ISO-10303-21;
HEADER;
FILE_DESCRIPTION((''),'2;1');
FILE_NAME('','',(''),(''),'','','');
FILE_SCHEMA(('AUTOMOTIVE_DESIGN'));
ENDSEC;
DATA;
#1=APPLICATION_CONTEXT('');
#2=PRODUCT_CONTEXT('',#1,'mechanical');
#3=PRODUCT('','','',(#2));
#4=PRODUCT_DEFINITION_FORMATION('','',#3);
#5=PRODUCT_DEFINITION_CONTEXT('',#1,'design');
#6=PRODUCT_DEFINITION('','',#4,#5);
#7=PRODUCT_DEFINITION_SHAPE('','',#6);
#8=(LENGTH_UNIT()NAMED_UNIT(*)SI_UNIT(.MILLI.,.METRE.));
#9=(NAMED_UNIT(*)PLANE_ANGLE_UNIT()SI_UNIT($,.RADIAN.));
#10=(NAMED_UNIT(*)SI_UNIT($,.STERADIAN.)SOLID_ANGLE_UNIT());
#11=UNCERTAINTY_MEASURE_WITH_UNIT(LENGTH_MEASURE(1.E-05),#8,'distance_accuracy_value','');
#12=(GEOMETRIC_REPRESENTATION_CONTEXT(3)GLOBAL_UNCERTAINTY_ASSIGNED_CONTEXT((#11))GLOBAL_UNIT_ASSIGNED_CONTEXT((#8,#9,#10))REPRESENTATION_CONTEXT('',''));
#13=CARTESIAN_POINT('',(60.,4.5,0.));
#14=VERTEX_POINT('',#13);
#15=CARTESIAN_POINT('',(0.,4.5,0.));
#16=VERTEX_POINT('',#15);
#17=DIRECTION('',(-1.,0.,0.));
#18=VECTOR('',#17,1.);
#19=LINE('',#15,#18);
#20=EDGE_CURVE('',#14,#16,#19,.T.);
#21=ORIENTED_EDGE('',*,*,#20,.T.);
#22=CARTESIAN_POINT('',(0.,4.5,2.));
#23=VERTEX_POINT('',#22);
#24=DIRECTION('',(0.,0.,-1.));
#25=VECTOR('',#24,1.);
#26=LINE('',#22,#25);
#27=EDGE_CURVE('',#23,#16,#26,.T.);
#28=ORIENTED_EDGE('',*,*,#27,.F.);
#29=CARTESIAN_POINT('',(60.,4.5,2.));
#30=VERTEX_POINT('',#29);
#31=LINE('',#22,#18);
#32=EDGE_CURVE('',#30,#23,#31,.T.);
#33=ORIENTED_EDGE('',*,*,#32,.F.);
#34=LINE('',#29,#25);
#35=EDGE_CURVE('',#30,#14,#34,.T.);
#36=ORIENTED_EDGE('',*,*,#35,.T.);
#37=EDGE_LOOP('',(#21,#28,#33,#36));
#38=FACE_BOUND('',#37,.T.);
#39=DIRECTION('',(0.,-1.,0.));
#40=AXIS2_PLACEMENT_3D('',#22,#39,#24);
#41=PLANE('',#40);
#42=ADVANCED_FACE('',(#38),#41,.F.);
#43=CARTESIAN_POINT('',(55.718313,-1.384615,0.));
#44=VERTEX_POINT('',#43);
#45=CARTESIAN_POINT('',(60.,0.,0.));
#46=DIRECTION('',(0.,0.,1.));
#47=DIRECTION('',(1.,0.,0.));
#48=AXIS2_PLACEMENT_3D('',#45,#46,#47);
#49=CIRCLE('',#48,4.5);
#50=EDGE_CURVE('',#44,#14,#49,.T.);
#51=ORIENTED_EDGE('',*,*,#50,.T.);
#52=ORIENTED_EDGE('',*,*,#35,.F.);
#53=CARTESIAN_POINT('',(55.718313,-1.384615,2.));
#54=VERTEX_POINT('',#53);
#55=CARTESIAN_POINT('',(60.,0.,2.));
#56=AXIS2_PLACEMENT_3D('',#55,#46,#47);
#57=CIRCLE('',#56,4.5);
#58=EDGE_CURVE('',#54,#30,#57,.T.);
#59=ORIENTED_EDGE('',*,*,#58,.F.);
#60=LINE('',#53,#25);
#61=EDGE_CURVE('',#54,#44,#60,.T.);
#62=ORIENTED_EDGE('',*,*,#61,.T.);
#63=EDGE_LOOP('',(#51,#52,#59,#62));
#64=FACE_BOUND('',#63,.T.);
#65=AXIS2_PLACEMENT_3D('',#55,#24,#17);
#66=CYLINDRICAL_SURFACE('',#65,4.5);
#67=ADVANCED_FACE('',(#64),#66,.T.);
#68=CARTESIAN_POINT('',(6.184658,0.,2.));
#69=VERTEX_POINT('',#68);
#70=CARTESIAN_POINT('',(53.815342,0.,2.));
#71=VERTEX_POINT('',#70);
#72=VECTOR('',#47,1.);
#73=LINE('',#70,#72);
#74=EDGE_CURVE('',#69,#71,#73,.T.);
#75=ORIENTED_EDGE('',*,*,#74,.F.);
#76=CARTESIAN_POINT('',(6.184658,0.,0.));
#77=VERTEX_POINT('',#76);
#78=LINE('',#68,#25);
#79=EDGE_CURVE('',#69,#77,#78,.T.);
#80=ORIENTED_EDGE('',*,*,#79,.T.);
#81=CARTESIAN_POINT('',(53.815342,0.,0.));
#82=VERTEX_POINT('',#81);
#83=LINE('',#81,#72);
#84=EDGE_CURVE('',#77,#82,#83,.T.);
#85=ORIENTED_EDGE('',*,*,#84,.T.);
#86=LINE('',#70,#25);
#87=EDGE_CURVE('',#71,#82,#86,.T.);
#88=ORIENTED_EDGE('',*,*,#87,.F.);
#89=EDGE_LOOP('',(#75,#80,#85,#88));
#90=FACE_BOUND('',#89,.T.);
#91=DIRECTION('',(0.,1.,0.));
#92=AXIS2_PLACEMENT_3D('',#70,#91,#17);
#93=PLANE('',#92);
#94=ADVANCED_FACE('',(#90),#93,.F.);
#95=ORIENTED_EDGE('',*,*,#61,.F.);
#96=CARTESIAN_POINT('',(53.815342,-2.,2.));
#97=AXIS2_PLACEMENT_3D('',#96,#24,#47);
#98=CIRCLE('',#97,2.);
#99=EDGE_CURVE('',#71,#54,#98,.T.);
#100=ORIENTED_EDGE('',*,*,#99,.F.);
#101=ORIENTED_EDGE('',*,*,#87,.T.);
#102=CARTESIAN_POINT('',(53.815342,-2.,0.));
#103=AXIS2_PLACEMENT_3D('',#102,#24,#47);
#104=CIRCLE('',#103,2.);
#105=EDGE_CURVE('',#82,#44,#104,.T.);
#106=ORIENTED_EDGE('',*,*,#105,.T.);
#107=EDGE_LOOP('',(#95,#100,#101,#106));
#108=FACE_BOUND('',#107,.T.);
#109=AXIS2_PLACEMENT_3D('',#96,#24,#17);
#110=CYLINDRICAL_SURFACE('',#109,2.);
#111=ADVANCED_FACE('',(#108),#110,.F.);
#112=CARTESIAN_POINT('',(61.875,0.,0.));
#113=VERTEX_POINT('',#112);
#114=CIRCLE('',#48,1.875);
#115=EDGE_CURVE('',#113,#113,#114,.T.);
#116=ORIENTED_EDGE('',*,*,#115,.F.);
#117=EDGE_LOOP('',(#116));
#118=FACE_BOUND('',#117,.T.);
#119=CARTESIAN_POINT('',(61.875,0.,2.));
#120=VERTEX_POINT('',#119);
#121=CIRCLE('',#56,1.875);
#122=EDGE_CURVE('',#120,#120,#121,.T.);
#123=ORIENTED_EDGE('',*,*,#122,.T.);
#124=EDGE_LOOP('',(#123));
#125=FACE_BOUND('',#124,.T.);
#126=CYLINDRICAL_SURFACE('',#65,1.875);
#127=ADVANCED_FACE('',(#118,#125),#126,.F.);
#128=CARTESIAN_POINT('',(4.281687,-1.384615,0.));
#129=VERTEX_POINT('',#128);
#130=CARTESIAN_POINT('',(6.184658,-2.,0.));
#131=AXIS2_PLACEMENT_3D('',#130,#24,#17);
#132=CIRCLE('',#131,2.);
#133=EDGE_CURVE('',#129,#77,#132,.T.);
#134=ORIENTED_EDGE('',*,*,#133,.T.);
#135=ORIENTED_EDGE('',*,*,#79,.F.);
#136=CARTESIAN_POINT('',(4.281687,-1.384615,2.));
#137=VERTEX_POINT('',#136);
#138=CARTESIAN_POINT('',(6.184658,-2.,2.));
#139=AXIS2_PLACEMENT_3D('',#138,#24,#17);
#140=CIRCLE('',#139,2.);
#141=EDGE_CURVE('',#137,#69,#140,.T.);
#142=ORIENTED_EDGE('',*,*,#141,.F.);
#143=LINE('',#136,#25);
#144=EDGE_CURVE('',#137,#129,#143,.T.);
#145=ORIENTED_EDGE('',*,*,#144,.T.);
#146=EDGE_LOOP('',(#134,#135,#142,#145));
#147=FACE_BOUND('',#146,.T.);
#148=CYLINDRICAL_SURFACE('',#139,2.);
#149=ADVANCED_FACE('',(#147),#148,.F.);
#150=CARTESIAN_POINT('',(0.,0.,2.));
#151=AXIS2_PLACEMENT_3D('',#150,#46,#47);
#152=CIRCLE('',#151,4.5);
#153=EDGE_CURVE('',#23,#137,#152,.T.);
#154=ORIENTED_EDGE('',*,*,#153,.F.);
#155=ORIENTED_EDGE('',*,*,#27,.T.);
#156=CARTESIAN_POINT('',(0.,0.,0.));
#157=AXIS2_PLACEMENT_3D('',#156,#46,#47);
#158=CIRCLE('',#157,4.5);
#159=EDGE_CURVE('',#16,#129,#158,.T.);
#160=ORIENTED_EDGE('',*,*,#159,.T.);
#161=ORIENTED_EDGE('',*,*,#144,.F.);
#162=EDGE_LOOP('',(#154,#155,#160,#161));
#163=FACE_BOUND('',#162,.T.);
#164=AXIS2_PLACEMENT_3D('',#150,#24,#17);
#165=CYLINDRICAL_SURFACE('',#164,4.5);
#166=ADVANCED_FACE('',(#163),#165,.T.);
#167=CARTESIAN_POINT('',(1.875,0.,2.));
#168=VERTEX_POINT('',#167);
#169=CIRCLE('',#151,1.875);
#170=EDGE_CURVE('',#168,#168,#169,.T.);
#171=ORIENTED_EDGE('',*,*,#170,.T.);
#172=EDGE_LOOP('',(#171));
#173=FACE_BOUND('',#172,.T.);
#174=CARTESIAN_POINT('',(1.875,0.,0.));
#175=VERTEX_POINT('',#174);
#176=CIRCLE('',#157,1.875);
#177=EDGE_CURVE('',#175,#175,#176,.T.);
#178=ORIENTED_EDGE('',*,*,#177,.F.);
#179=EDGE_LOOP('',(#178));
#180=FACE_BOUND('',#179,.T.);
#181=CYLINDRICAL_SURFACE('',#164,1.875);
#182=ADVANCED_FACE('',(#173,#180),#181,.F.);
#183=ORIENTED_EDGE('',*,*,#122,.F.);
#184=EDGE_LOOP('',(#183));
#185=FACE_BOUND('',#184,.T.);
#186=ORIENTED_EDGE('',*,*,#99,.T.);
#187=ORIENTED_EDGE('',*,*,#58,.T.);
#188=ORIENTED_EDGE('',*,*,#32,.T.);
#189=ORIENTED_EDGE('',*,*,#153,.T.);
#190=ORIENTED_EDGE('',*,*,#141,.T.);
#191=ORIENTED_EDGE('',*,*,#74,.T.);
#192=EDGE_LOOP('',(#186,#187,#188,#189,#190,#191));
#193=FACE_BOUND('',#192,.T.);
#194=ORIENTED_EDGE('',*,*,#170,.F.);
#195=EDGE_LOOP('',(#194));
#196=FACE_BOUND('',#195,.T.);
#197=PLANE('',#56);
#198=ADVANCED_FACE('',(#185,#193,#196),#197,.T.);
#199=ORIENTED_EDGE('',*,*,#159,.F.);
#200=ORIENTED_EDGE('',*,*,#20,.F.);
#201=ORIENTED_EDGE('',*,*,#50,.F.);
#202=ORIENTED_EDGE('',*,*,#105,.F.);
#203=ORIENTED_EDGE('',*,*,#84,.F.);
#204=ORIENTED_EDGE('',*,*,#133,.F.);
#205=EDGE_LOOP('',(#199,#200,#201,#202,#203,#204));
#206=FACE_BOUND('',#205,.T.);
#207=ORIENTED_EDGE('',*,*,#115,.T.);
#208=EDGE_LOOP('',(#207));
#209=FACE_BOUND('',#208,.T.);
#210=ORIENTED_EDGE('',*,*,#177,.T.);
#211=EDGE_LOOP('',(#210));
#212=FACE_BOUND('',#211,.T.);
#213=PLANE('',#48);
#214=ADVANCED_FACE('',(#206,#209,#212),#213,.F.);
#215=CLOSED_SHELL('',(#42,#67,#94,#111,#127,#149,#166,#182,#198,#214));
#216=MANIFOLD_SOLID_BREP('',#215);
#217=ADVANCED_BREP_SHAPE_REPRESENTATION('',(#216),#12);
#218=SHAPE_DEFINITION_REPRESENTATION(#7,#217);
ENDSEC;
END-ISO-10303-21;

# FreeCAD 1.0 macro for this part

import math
import FreeCAD as App
import Part
import Sketcher

V = App.Vector

doc = App.newDocument("Part")
body = doc.addObject("PartDesign::Body", "Body")

sketch1 = doc.addObject("Sketcher::SketchObject", "Sketch")
body.addObject(sketch1)
sketch1.AttachmentSupport = (doc.XY_Plane, [""])
sketch1.MapMode = "FlatFace"
sketch1.addGeometry([
    Part.LineSegment(V(60, 4.5, 0), V(0, 4.5, 0)),
    Part.ArcOfCircle(Part.Circle(V(0, 0, 0), V(0, 0, 1), 4.5), math.radians(90), math.radians(342)),
    Part.ArcOfCircle(Part.Circle(V(6.2, -2, 0), V(0, 0, 1), 2), math.radians(90), math.radians(162)),
    Part.LineSegment(V(6.2, 0, 0), V(53.8, 0, 0)),
    Part.ArcOfCircle(Part.Circle(V(53.8, -2, 0), V(0, 0, 1), 2), math.radians(18), math.radians(90)),
    Part.ArcOfCircle(Part.Circle(V(60, 0, 0), V(0, 0, 1), 4.5), math.radians(-162), math.radians(90)),
    Part.Circle(V(60, 0, 0), V(0, 0, 1), 1.9),
    Part.Circle(V(0, 0, 0), V(0, 0, 1), 1.9),
], False)
sketch1.addConstraint([
    Sketcher.Constraint("Tangent", 0, 2, 1, 1),
    Sketcher.Constraint("Tangent", 1, 2, 2, 2),
    Sketcher.Constraint("Tangent", 2, 1, 3, 1),
    Sketcher.Constraint("Tangent", 3, 2, 4, 2),
    Sketcher.Constraint("Tangent", 4, 1, 5, 1),
    Sketcher.Constraint("Tangent", 5, 2, 0, 1),
    Sketcher.Constraint("Horizontal", 0),
    Sketcher.Constraint("Horizontal", 3),
    Sketcher.Constraint("Coincident", 1, 3, -1, 1),
    Sketcher.Constraint("Coincident", 7, 3, -1, 1),
    Sketcher.Constraint("Coincident", 6, 3, 5, 3),
    Sketcher.Constraint("Equal", 2, 4),
    Sketcher.Constraint("Equal", 1, 5),
    Sketcher.Constraint("Equal", 6, 7),
    Sketcher.Constraint("PointOnObject", 2, 1, -1),
    Sketcher.Constraint("Radius", 2, 2.0),
    Sketcher.Constraint("Radius", 1, 4.5),
    Sketcher.Constraint("Diameter", 6, 3.75),
    Sketcher.Constraint("DistanceX", 0, 2, 0, 1, 60.0),
])
pad1 = doc.addObject("PartDesign::Pad", "Pad")
body.addObject(pad1)
pad1.Profile = sketch1
pad1.Length = 2

doc.recompute()
